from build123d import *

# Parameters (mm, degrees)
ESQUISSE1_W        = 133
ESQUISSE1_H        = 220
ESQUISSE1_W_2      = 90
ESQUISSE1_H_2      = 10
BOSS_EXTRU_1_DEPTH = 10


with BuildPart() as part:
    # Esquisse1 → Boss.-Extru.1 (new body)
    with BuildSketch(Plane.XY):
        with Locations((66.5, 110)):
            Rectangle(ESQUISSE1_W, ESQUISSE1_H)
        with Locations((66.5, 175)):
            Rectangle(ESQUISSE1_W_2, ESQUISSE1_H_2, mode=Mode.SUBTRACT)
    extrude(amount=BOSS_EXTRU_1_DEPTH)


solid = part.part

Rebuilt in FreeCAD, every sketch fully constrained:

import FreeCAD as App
import Part
import Sketcher

V = App.Vector
Q = App.Units.Quantity


def add_polygon(sketch, points):
    """Adds a closed chain of lines whose ends are joined by coincident constraints."""
    first, n = sketch.GeometryCount, len(points)
    for a, b in zip(points, points[1:] + points[:1]):
        sketch.addGeometry(Part.LineSegment(App.Vector(*a, 0), App.Vector(*b, 0)), False)
    for i in range(n):
        sketch.addConstraint(Sketcher.Constraint("Coincident", first + i, 2, first + (i + 1) % n, 1))

doc = App.newDocument("Part")
body = doc.addObject("PartDesign::Body", "Body")

# Sketch on XY plane
sketch1 = body.newObject("Sketcher::SketchObject", "Sketch")
sketch1.AttachmentSupport = (doc.getObject("XY_Plane"), [""])
sketch1.MapMode = "FlatFace"
add_polygon(sketch1, [(0, 220), (0, 0), (133, 0), (133, 220)])  # lines 0-3
add_polygon(sketch1, [(111.5, 170), (21.5, 170), (21.5, 180), (111.5, 180)])  # lines 4-7
sketch1.addConstraint(Sketcher.Constraint("Vertical", 0))
sketch1.addConstraint(Sketcher.Constraint("Horizontal", 1))
sketch1.addConstraint(Sketcher.Constraint("Vertical", 2))
sketch1.addConstraint(Sketcher.Constraint("Horizontal", 3))
sketch1.addConstraint(Sketcher.Constraint("Horizontal", 4))
sketch1.addConstraint(Sketcher.Constraint("Vertical", 5))
sketch1.addConstraint(Sketcher.Constraint("Horizontal", 6))
sketch1.addConstraint(Sketcher.Constraint("Vertical", 7))
sketch1.addConstraint(Sketcher.Constraint("Coincident", 0, 2, -1, 1))
sketch1.addConstraint(Sketcher.Constraint("DistanceX", 1, 1, 1, 2, Q("133 mm")))
sketch1.addConstraint(Sketcher.Constraint("DistanceX", 4, 2, 4, 1, Q("90 mm")))
sketch1.addConstraint(Sketcher.Constraint("DistanceY", 0, 2, 0, 1, Q("220 mm")))
sketch1.addConstraint(Sketcher.Constraint("DistanceY", 5, 1, 5, 2, Q("10 mm")))
sketch1.addConstraint(Sketcher.Constraint("DistanceY", -1, 1, 4, 2, Q("170 mm")))
sketch1.addConstraint(Sketcher.Constraint("DistanceX", -1, 1, 4, 2, Q("21.5 mm")))
pad1 = body.newObject("PartDesign::Pad", "Pad")
pad1.Profile = sketch1
pad1.Length = 10

doc.recompute()
